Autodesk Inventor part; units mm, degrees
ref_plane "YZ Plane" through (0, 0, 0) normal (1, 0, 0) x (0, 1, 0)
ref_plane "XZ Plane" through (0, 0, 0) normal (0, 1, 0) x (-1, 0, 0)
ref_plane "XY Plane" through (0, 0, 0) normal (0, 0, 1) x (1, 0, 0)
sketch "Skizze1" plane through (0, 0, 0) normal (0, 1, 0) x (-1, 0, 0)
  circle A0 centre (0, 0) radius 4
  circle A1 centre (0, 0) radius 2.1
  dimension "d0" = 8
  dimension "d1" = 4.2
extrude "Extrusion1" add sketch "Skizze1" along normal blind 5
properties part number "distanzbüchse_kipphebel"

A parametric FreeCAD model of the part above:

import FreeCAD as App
import Part
import Sketcher

V = App.Vector
Q = App.Units.Quantity

doc = App.newDocument("Part")
body = doc.addObject("PartDesign::Body", "Body")

# Sketch on XZ plane
sketch1 = body.newObject("Sketcher::SketchObject", "Sketch")
sketch1.AttachmentSupport = (doc.getObject("XZ_Plane"), [""])
sketch1.MapMode = "FlatFace"
sketch1.addGeometry(Part.Circle(V(0, 0, 0), V(0, 0, 1), 4), False)
sketch1.addGeometry(Part.Circle(V(0, 0, 0), V(0, 0, 1), 2.1), False)
sketch1.addConstraint(Sketcher.Constraint("Coincident", 0, 3, -1, 1))
sketch1.addConstraint(Sketcher.Constraint("Coincident", 1, 3, -1, 1))
sketch1.addConstraint(Sketcher.Constraint("Diameter", 0, Q("8 mm")))
sketch1.addConstraint(Sketcher.Constraint("Diameter", 1, Q("4.2 mm")))
pad1 = body.newObject("PartDesign::Pad", "Pad")
pad1.Profile = sketch1
pad1.Length = 5
pad1.Reversed = True

doc.recompute()
